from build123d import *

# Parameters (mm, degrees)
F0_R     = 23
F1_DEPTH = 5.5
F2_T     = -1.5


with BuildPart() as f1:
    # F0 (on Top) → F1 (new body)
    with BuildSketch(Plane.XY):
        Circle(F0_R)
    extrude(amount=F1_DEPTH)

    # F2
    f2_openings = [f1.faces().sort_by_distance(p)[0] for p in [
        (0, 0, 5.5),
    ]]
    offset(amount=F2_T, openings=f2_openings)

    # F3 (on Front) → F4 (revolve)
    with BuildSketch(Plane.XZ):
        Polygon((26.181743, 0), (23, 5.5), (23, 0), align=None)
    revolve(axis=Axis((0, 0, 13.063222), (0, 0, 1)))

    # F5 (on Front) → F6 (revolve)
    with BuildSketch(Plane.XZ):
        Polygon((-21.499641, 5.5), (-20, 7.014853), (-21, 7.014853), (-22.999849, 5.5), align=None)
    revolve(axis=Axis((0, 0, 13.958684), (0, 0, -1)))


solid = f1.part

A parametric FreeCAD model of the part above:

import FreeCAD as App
import Part
import Sketcher
Q = App.Units.Quantity


def faces_at(feature, points):
    """Names of the faces that lie closest to the given points."""
    faces = feature.Shape.Faces
    near = lambda p: min(range(len(faces)), key=lambda i: faces[i].distToShape(Part.Vertex(*p))[0])
    return sorted({f"Face{near(p) + 1}" for p in points})

doc = App.newDocument("Part")
body = doc.addObject("PartDesign::Body", "Body")

sketch1 = body.newObject("Sketcher::SketchObject", "Sketch")
sketch1.AttachmentSupport = (doc.getObject("XY_Plane"), [""])
sketch1.MapMode = "FlatFace"
sketch1.addGeometry(Part.Circle(App.Vector(0, 0, 0), App.Vector(0, 0, 1), 23), False)
sketch1.addConstraint(Sketcher.Constraint("Coincident", 0, 3, -1, 1))
sketch1.addConstraint(Sketcher.Constraint("Diameter", 0, Q("46 mm")))
pad1 = body.newObject("PartDesign::Pad", "Pad")
pad1.Profile = sketch1
pad1.Length = 5.5
doc.recompute()

thickness = body.newObject("PartDesign::Thickness", "Thickness")
thickness.Base = (pad1, faces_at(pad1, [(0, 0, 5.5)]))
thickness.Value = 1.5
thickness.Reversed = True
thickness.Join = "Arc"

sketch2 = body.newObject("Sketcher::SketchObject", "Sketch001")
sketch2.AttachmentSupport = (doc.getObject("XZ_Plane"), [""])
sketch2.MapMode = "FlatFace"
sketch2.addGeometry(Part.LineSegment(App.Vector(26.2, 0, 0), App.Vector(23, 5.5, 0)), False)
sketch2.addGeometry(Part.LineSegment(App.Vector(23, 5.5, 0), App.Vector(23, 0, 0)), False)
sketch2.addGeometry(Part.LineSegment(App.Vector(23, 0, 0), App.Vector(26.2, 0, 0)), False)
sketch2.addConstraint(Sketcher.Constraint("Coincident", 0, 2, 1, 1))
sketch2.addConstraint(Sketcher.Constraint("Coincident", 1, 2, 2, 1))
sketch2.addConstraint(Sketcher.Constraint("Coincident", 2, 2, 0, 1))
sketch2.addConstraint(Sketcher.Constraint("Vertical", 1))
sketch2.addConstraint(Sketcher.Constraint("Horizontal", 2))
sketch2.addConstraint(Sketcher.Constraint("PointOnObject", 1, 2, -1))
sketch2.addConstraint(Sketcher.Constraint("DistanceY", 1, 2, 1, 1, Q("5.5 mm")))
sketch2.addConstraint(Sketcher.Constraint("DistanceX", -1, 1, 0, 2, Q("23 mm")))
sketch2.addConstraint(Sketcher.Constraint("DistanceX", 2, 1, 2, 2, Q("3.181743 mm")))
revolution = body.newObject("PartDesign::Revolution", "Revolution")
revolution.Profile = sketch2
revolution.ReferenceAxis = (sketch2, ["V_Axis"])
revolution.Angle = 360

sketch3 = body.newObject("Sketcher::SketchObject", "Sketch002")
sketch3.AttachmentSupport = (doc.getObject("XZ_Plane"), [""])
sketch3.MapMode = "FlatFace"
sketch3.addGeometry(Part.LineSegment(App.Vector(-21.5, 5.5, 0), App.Vector(-20, 7, 0)), False)
sketch3.addGeometry(Part.LineSegment(App.Vector(-20, 7, 0), App.Vector(-21, 7, 0)), False)
sketch3.addGeometry(Part.LineSegment(App.Vector(-21, 7, 0), App.Vector(-23, 5.5, 0)), False)
sketch3.addGeometry(Part.LineSegment(App.Vector(-23, 5.5, 0), App.Vector(-21.5, 5.5, 0)), False)
sketch3.addConstraint(Sketcher.Constraint("Coincident", 0, 2, 1, 1))
sketch3.addConstraint(Sketcher.Constraint("Coincident", 1, 2, 2, 1))
sketch3.addConstraint(Sketcher.Constraint("Coincident", 2, 2, 3, 1))
sketch3.addConstraint(Sketcher.Constraint("Coincident", 3, 2, 0, 1))
sketch3.addConstraint(Sketcher.Constraint("Horizontal", 1))
sketch3.addConstraint(Sketcher.Constraint("Horizontal", 3))
sketch3.addConstraint(Sketcher.Constraint("DistanceX", 1, 2, 1, 1, Q("1 mm")))
sketch3.addConstraint(Sketcher.Constraint("DistanceX", 0, 2, -1, 1, Q("20 mm")))
sketch3.addConstraint(Sketcher.Constraint("DistanceY", -1, 1, 2, 2, Q("5.5 mm")))
sketch3.addConstraint(Sketcher.Constraint("DistanceX", 3, 1, 3, 2, Q("1.500208 mm")))
sketch3.addConstraint(Sketcher.Constraint("Distance", 2, Q("2.50882 mm")))
sketch3.addConstraint(Sketcher.Constraint("DistanceX", 2, 2, -1, 1, Q("22.999849 mm")))
revolution2 = body.newObject("PartDesign::Revolution", "Revolution001")
revolution2.Profile = sketch3
revolution2.ReferenceAxis = (sketch3, ["V_Axis"])
revolution2.Angle = 360

doc.recompute()
